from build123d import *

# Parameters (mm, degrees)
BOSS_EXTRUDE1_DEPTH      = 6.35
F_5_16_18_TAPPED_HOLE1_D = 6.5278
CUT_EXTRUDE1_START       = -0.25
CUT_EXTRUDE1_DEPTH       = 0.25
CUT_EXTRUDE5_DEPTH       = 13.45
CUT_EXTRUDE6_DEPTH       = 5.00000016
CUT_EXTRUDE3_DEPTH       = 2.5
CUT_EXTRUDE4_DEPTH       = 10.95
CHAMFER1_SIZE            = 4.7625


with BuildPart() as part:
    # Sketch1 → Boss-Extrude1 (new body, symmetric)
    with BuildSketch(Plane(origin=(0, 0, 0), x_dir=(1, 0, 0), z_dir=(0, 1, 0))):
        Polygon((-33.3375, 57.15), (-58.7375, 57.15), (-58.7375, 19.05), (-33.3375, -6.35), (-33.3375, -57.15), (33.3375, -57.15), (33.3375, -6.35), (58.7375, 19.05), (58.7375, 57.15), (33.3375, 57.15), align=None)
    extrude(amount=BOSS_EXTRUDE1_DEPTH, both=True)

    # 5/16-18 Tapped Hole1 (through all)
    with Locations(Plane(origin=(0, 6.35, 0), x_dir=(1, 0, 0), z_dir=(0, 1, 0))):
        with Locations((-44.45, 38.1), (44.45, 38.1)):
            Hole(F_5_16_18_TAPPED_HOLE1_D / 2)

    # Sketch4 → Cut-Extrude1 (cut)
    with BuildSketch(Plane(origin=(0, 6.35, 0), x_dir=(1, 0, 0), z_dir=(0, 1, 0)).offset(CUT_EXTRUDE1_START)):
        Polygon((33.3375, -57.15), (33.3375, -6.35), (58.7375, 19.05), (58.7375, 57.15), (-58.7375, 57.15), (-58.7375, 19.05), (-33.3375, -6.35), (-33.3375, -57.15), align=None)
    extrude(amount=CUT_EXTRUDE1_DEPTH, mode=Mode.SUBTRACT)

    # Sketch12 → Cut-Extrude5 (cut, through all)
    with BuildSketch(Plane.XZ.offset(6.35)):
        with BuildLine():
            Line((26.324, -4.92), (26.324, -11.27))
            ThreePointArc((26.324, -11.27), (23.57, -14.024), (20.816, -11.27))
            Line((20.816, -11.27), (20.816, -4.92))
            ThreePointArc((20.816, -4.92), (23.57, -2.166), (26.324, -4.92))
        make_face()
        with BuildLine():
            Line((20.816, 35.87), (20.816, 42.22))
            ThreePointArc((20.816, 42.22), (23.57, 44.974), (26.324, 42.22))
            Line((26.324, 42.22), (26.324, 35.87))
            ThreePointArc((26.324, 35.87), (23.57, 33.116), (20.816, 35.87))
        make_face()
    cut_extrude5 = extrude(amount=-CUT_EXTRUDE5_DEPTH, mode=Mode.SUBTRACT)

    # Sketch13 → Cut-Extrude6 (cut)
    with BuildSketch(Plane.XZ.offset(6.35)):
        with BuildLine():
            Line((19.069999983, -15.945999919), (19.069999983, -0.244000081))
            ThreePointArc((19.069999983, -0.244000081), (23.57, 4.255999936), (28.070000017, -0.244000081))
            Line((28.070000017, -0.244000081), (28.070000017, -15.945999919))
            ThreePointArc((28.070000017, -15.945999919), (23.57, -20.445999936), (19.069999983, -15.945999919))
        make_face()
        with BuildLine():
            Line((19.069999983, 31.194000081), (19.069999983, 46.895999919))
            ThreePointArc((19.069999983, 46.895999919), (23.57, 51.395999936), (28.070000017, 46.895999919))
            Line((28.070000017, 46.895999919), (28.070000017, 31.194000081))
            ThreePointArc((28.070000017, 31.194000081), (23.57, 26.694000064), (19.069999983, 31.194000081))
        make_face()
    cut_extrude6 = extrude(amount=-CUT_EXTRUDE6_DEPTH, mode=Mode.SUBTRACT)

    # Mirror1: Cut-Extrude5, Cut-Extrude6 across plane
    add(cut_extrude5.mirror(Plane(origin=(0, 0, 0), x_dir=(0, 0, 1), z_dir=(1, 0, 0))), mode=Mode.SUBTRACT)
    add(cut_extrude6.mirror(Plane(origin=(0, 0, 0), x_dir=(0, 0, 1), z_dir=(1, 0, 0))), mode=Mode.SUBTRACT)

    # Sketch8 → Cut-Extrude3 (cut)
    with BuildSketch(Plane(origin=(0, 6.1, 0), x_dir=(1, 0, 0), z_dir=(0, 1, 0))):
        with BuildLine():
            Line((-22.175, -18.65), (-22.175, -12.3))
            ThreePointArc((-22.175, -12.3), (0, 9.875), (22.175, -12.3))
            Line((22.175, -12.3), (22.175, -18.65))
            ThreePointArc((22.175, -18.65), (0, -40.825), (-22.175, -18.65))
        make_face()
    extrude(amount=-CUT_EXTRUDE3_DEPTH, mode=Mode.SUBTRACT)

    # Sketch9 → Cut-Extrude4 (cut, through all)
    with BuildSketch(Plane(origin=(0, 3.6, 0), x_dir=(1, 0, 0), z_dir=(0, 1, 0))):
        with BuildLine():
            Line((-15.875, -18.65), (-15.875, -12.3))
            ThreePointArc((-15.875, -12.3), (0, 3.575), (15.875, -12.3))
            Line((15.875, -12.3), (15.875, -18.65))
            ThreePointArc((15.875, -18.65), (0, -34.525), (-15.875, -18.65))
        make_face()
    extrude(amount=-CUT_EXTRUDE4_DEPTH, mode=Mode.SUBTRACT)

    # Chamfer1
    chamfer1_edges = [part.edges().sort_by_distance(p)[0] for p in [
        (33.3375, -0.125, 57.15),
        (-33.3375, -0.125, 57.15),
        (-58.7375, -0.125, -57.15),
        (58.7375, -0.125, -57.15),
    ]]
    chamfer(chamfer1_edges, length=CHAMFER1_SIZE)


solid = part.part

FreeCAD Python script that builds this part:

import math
import FreeCAD as App
import Part
import Sketcher

V = App.Vector
Q = App.Units.Quantity


def edges_at(feature, points):
    """Names of the edges that pass closest to the given points."""
    edges = feature.Shape.Edges
    near = lambda p: min(range(len(edges)), key=lambda i: edges[i].distToShape(Part.Vertex(*p))[0])
    return sorted({f"Edge{near(p) + 1}" for p in points})


def add_polygon(sketch, points):
    """Adds a closed chain of lines whose ends are joined by coincident constraints."""
    first, n = sketch.GeometryCount, len(points)
    for a, b in zip(points, points[1:] + points[:1]):
        sketch.addGeometry(Part.LineSegment(App.Vector(*a, 0), App.Vector(*b, 0)), False)
    for i in range(n):
        sketch.addConstraint(Sketcher.Constraint("Coincident", first + i, 2, first + (i + 1) % n, 1))

doc = App.newDocument("Part")
params = doc.addObject("Spreadsheet::Sheet", "Params")
for row, (alias, value) in enumerate([
    ("sketch1_height", "2 in"),
    ("sketch1_height2", "1.5 in"),
    ("sketch1_width", "2.625 in"),
    ("pad1_length", "0.5 in"),
    ("sketch2_diameter", "0.257 in"),
    ("hole_diameter", "0.257 in"),
    ("sketch3_height", "2 in"),
    ("sketch3_height2", "1.5 in"),
    ("sketch3_width", "4.625 in"),
    ("pocket1_length", "0.25 mm"),
    ("sketch4_height", "0.25 in"),
    ("pocket3_length", "5 mm"),
    ("sketch6_height", "0.25 in"),
    ("pocket4_length", "2.5 mm"),
    ("sketch7_radius", "0.625 in"),
    ("sketch7_height", "0.25 in"),
    ("chamfer_size", "0.1875 in"),
], start=1):
    params.set(f"A{row}", alias)
    params.set(f"B{row}", "=" + value)
    params.setAlias(f"B{row}", alias)

body = doc.addObject("PartDesign::Body", "Body")

# Sketch on XZ plane
sketch1 = doc.addObject("Sketcher::SketchObject", "Sketch")
body.addObject(sketch1)
sketch1.AttachmentSupport = (doc.XZ_Plane, [""])
sketch1.MapMode = "FlatFace"
add_polygon(sketch1, [(-59, -57), (-59, -19), (-33, 6), (-33, 57), (33, 57), (33, 6), (59, -19), (59, -57)])  # lines 0-7
sketch1.addConstraint([
    Sketcher.Constraint("Vertical", 0),
    Sketcher.Constraint("Vertical", 2),
    Sketcher.Constraint("Horizontal", 3),
    Sketcher.Constraint("Vertical", 4),
    Sketcher.Constraint("Vertical", 6),
    Sketcher.Constraint("Horizontal", 7),
    Sketcher.Constraint("Symmetric", 1, 2, 4, 2, -2),
    Sketcher.Constraint("Symmetric", 0, 2, 5, 2, -2),
    Sketcher.Constraint("Perpendicular", 1, 5),
    Sketcher.Constraint("DistanceY", 2, 1, 2, 2, Q("2 in")),
    Sketcher.Constraint("DistanceY", 0, 1, 0, 2, Q("1.5 in")),
    Sketcher.Constraint("DistanceX", 0, 2, 1, 2, Q("1 in")),
    Sketcher.Constraint("DistanceX", 3, 1, 3, 2, Q("2.625 in")),
    Sketcher.Constraint("DistanceY", 0, 2, -1, 1, Q("0.75 in")),
])
sketch1.setExpression("Constraints[17]", "Params.sketch1_height")
sketch1.setExpression("Constraints[18]", "Params.sketch1_height2")
sketch1.setExpression("Constraints[20]", "Params.sketch1_width")
pad1 = doc.addObject("PartDesign::Pad", "Pad")
body.addObject(pad1)
pad1.Profile = sketch1
pad1.setExpression("Length", "Params.pad1_length")
pad1.Midplane = True

# Sketch on XZ plane
sketch2 = doc.addObject("Sketcher::SketchObject", "Sketch001")
body.addObject(sketch2)
sketch2.AttachmentSupport = (doc.XZ_Plane, [""])
sketch2.MapMode = "FlatFace"
sketch2.AttachmentOffset = App.Placement(V(0, 0, -0.25 * 25.4), App.Rotation())
sketch2.addGeometry([
    Part.Circle(V(-44.5, -38.1, 0), V(0, 0, 1), 3.3),
    Part.Circle(V(44.5, -38.1, 0), V(0, 0, 1), 3.3),
], False)
sketch2.addConstraint([
    Sketcher.Constraint("Equal", 0, 1),
    Sketcher.Constraint("Symmetric", 0, 3, 1, 3, -2),
    Sketcher.Constraint("Diameter", 0, Q("0.257 in")),
    Sketcher.Constraint("DistanceY", 0, 3, -1, 1, Q("1.5 in")),
    Sketcher.Constraint("DistanceX", 0, 3, 1, 3, Q("3.5 in")),
])
sketch2.setExpression("Constraints[2]", "Params.sketch2_diameter")
doc.recompute()
hole = doc.addObject("PartDesign::Hole", "Hole")
body.addObject(hole)
hole.Profile = sketch2
hole.ThreadType = "None"
hole.setExpression("Diameter", "Params.hole_diameter")
hole.DepthType = "ThroughAll"
hole.Reversed = True

# Sketch on XZ plane
sketch3 = doc.addObject("Sketcher::SketchObject", "Sketch002")
body.addObject(sketch3)
sketch3.AttachmentSupport = (doc.XZ_Plane, [""])
sketch3.MapMode = "FlatFace"
sketch3.AttachmentOffset = App.Placement(V(0, 0, -6.1), App.Rotation())
add_polygon(sketch3, [(33, 57), (33, 6), (59, -19), (59, -57), (-59, -57), (-59, -19), (-33, 6), (-33, 57)])  # lines 0-7
sketch3.addConstraint([
    Sketcher.Constraint("Vertical", 0),
    Sketcher.Constraint("Vertical", 2),
    Sketcher.Constraint("Horizontal", 3),
    Sketcher.Constraint("Vertical", 4),
    Sketcher.Constraint("Vertical", 6),
    Sketcher.Constraint("Horizontal", 7),
    Sketcher.Constraint("Symmetric", 1, 2, 4, 2, -2),
    Sketcher.Constraint("Symmetric", 0, 2, 5, 2, -2),
    Sketcher.Constraint("Perpendicular", 1, 5),
    Sketcher.Constraint("DistanceY", 0, 2, 0, 1, Q("2 in")),
    Sketcher.Constraint("DistanceY", 2, 2, 2, 1, Q("1.5 in")),
    Sketcher.Constraint("DistanceX", 0, 2, 1, 2, Q("1 in")),
    Sketcher.Constraint("DistanceX", 3, 2, 3, 1, Q("4.625 in")),
    Sketcher.Constraint("DistanceY", -1, 1, 0, 2, Q("0.25 in")),
])
sketch3.setExpression("Constraints[17]", "Params.sketch3_height")
sketch3.setExpression("Constraints[18]", "Params.sketch3_height2")
sketch3.setExpression("Constraints[20]", "Params.sketch3_width")
pocket1 = doc.addObject("PartDesign::Pocket", "Pocket")
body.addObject(pocket1)
pocket1.Profile = sketch3
pocket1.setExpression("Length", "Params.pocket1_length")

# Sketch on XZ plane
sketch4 = doc.addObject("Sketcher::SketchObject", "Sketch003")
body.addObject(sketch4)
sketch4.AttachmentSupport = (doc.XZ_Plane, [""])
sketch4.MapMode = "FlatFace"
sketch4.AttachmentOffset = App.Placement(V(0, 0, 0.25 * 25.4), App.Rotation())
sketch4.addGeometry([
    Part.LineSegment(V(26.3, -11.3, 0), V(26.3, -4.9, 0)),  # 0
    Part.ArcOfCircle(Part.Circle(V(23.6, -4.9, 0), V(0, 0, 1), 2.8), math.radians(0), math.radians(180)),  # 1
    Part.LineSegment(V(20.8, -4.9, 0), V(20.8, -11.3, 0)),  # 2
    Part.ArcOfCircle(Part.Circle(V(23.6, -11.3, 0), V(0, 0, 1), 2.8), math.radians(180), math.radians(360)),  # 3
    Part.LineSegment(V(20.8, 42.2, 0), V(20.8, 35.9, 0)),  # 4
    Part.ArcOfCircle(Part.Circle(V(23.6, 35.9, 0), V(0, 0, 1), 2.8), math.radians(180), math.radians(360)),  # 5
    Part.LineSegment(V(26.3, 35.9, 0), V(26.3, 42.2, 0)),  # 6
    Part.ArcOfCircle(Part.Circle(V(23.6, 42.2, 0), V(0, 0, 1), 2.8), math.radians(0), math.radians(180)),  # 7
], False)
sketch4.addConstraint([
    Sketcher.Constraint("Tangent", 0, 2, 1, 1),
    Sketcher.Constraint("Tangent", 1, 2, 2, 1),
    Sketcher.Constraint("Tangent", 2, 2, 3, 1),
    Sketcher.Constraint("Tangent", 3, 2, 0, 1),
    Sketcher.Constraint("Tangent", 4, 2, 5, 1),
    Sketcher.Constraint("Tangent", 5, 2, 6, 1),
    Sketcher.Constraint("Tangent", 6, 2, 7, 1),
    Sketcher.Constraint("Tangent", 7, 2, 4, 1),
    Sketcher.Constraint("Vertical", 0),
    Sketcher.Constraint("Vertical", 2),
    Sketcher.Constraint("Vertical", 4),
    Sketcher.Constraint("Vertical", 6),
    Sketcher.Constraint("Equal", 3, 5),
    Sketcher.Constraint("Vertical", 3, 3, 5, 3),
    Sketcher.Constraint("Equal", 2, 4),
    Sketcher.Constraint("DistanceY", 0, 1, 0, 2, Q("0.25 in")),
    Sketcher.Constraint("Radius", 1, 2.754),
    Sketcher.Constraint("DistanceX", -1, 1, 1, 3, 23.57),
    Sketcher.Constraint("DistanceY", 1, 3, -1, 1, 4.92),
    Sketcher.Constraint("DistanceY", -1, 1, 5, 3, 35.87),
])
sketch4.setExpression("Constraints[15]", "Params.sketch4_height")
pocket2 = doc.addObject("PartDesign::Pocket", "Pocket001")
body.addObject(pocket2)
pocket2.Profile = sketch4
pocket2.Type = "ThroughAll"

# Sketch on XZ plane
sketch5 = doc.addObject("Sketcher::SketchObject", "Sketch004")
body.addObject(sketch5)
sketch5.AttachmentSupport = (doc.XZ_Plane, [""])
sketch5.MapMode = "FlatFace"
sketch5.AttachmentOffset = App.Placement(V(0, 0, 0.25 * 25.4), App.Rotation())
sketch5.addGeometry([
    Part.LineSegment(V(19.1, -0.2, 0), V(19.1, -15.9, 0)),  # 0
    Part.ArcOfCircle(Part.Circle(V(23.6, -15.9, 0), V(0, 0, 1), 4.5), math.radians(180), math.radians(360)),  # 1
    Part.LineSegment(V(28.1, -15.9, 0), V(28.1, -0.2, 0)),  # 2
    Part.ArcOfCircle(Part.Circle(V(23.6, -0.2, 0), V(0, 0, 1), 4.5), math.radians(0), math.radians(180)),  # 3
    Part.LineSegment(V(19.1, 46.9, 0), V(19.1, 31.2, 0)),  # 4
    Part.ArcOfCircle(Part.Circle(V(23.6, 31.2, 0), V(0, 0, 1), 4.5), math.radians(180), math.radians(360)),  # 5
    Part.LineSegment(V(28.1, 31.2, 0), V(28.1, 46.9, 0)),  # 6
    Part.ArcOfCircle(Part.Circle(V(23.6, 46.9, 0), V(0, 0, 1), 4.5), math.radians(0), math.radians(180)),  # 7
], False)
sketch5.addConstraint([
    Sketcher.Constraint("Tangent", 0, 2, 1, 1),
    Sketcher.Constraint("Tangent", 1, 2, 2, 1),
    Sketcher.Constraint("Tangent", 2, 2, 3, 1),
    Sketcher.Constraint("Tangent", 3, 2, 0, 1),
    Sketcher.Constraint("Tangent", 4, 2, 5, 1),
    Sketcher.Constraint("Tangent", 5, 2, 6, 1),
    Sketcher.Constraint("Tangent", 6, 2, 7, 1),
    Sketcher.Constraint("Tangent", 7, 2, 4, 1),
    Sketcher.Constraint("Vertical", 0),
    Sketcher.Constraint("Vertical", 2),
    Sketcher.Constraint("Vertical", 4),
    Sketcher.Constraint("Vertical", 6),
    Sketcher.Constraint("Equal", 3, 5),
    Sketcher.Constraint("Vertical", 3, 3, 5, 3),
    Sketcher.Constraint("Equal", 2, 4),
    Sketcher.Constraint("Radius", 1, 4.5),
    Sketcher.Constraint("DistanceY", 0, 2, 0, 1, 15.702),
    Sketcher.Constraint("DistanceX", -1, 1, 1, 3, 23.57),
    Sketcher.Constraint("DistanceY", 1, 3, -1, 1, 15.946),
    Sketcher.Constraint("DistanceY", -1, 1, 5, 3, 31.194),
])
pocket3 = doc.addObject("PartDesign::Pocket", "Pocket002")
body.addObject(pocket3)
pocket3.Profile = sketch5
pocket3.setExpression("Length", "Params.pocket3_length")
doc.recompute()

mirrored = doc.addObject("PartDesign::Mirrored", "Mirrored")
body.addObject(mirrored)
mirrored.Originals = [pocket2, pocket3]
mirrored.MirrorPlane = (doc.YZ_Plane, [""])
body.Tip = mirrored

# Sketch on XZ plane
sketch6 = doc.addObject("Sketcher::SketchObject", "Sketch005")
body.addObject(sketch6)
sketch6.AttachmentSupport = (doc.XZ_Plane, [""])
sketch6.MapMode = "FlatFace"
sketch6.AttachmentOffset = App.Placement(V(0, 0, -6.1), App.Rotation())
sketch6.addGeometry([
    Part.LineSegment(V(-22, 12, 0), V(-22, 19, 0)),
    Part.ArcOfCircle(Part.Circle(V(0, 19, 0), V(0, 0, 1), 22), math.radians(0), math.radians(180)),
    Part.LineSegment(V(22, 19, 0), V(22, 12, 0)),
    Part.ArcOfCircle(Part.Circle(V(0, 12, 0), V(0, 0, 1), 22), math.radians(180), math.radians(360)),
], False)
sketch6.addConstraint([
    Sketcher.Constraint("Tangent", 0, 2, 1, 2),
    Sketcher.Constraint("Tangent", 1, 1, 2, 1),
    Sketcher.Constraint("Tangent", 2, 2, 3, 2),
    Sketcher.Constraint("Tangent", 3, 1, 0, 1),
    Sketcher.Constraint("Vertical", 0),
    Sketcher.Constraint("Vertical", 2),
    Sketcher.Constraint("PointOnObject", 1, 3, -2),
    Sketcher.Constraint("DistanceY", 0, 1, 0, 2, Q("0.25 in")),
    Sketcher.Constraint("Radius", 1, 22.175),
    Sketcher.Constraint("DistanceY", -1, 1, 1, 3, 18.65),
])
sketch6.setExpression("Constraints[7]", "Params.sketch6_height")
pocket4 = doc.addObject("PartDesign::Pocket", "Pocket003")
body.addObject(pocket4)
pocket4.Profile = sketch6
pocket4.setExpression("Length", "Params.pocket4_length")
pocket4.Reversed = True

# Sketch on XZ plane
sketch7 = doc.addObject("Sketcher::SketchObject", "Sketch006")
body.addObject(sketch7)
sketch7.AttachmentSupport = (doc.XZ_Plane, [""])
sketch7.MapMode = "FlatFace"
sketch7.AttachmentOffset = App.Placement(V(0, 0, -3.6), App.Rotation())
sketch7.addGeometry([
    Part.LineSegment(V(-16, 12, 0), V(-16, 19, 0)),
    Part.ArcOfCircle(Part.Circle(V(0, 19, 0), V(0, 0, 1), 16), math.radians(0), math.radians(180)),
    Part.LineSegment(V(16, 19, 0), V(16, 12, 0)),
    Part.ArcOfCircle(Part.Circle(V(0, 12, 0), V(0, 0, 1), 16), math.radians(180), math.radians(360)),
], False)
sketch7.addConstraint([
    Sketcher.Constraint("Tangent", 0, 2, 1, 2),
    Sketcher.Constraint("Tangent", 1, 1, 2, 1),
    Sketcher.Constraint("Tangent", 2, 2, 3, 2),
    Sketcher.Constraint("Tangent", 3, 1, 0, 1),
    Sketcher.Constraint("Vertical", 0),
    Sketcher.Constraint("Vertical", 2),
    Sketcher.Constraint("PointOnObject", 1, 3, -2),
    Sketcher.Constraint("Radius", 1, Q("0.625 in")),
    Sketcher.Constraint("DistanceY", 0, 1, 0, 2, Q("0.25 in")),
    Sketcher.Constraint("DistanceY", -1, 1, 1, 3, 18.65),
])
sketch7.setExpression("Constraints[7]", "Params.sketch7_radius")
sketch7.setExpression("Constraints[8]", "Params.sketch7_height")
pocket5 = doc.addObject("PartDesign::Pocket", "Pocket004")
body.addObject(pocket5)
pocket5.Profile = sketch7
pocket5.Type = "ThroughAll"
pocket5.Reversed = True
doc.recompute()

chamfer = doc.addObject("PartDesign::Chamfer", "Chamfer")
body.addObject(chamfer)
chamfer.Base = (pocket5, edges_at(pocket5, [
    (33.337, -0.125, 57.15),
    (-33.337, -0.125, 57.15),
    (-58.737, -0.125, -57.15),
    (58.737, -0.125, -57.15),
]))
chamfer.setExpression("Size", "Params.chamfer_size")

doc.recompute()
